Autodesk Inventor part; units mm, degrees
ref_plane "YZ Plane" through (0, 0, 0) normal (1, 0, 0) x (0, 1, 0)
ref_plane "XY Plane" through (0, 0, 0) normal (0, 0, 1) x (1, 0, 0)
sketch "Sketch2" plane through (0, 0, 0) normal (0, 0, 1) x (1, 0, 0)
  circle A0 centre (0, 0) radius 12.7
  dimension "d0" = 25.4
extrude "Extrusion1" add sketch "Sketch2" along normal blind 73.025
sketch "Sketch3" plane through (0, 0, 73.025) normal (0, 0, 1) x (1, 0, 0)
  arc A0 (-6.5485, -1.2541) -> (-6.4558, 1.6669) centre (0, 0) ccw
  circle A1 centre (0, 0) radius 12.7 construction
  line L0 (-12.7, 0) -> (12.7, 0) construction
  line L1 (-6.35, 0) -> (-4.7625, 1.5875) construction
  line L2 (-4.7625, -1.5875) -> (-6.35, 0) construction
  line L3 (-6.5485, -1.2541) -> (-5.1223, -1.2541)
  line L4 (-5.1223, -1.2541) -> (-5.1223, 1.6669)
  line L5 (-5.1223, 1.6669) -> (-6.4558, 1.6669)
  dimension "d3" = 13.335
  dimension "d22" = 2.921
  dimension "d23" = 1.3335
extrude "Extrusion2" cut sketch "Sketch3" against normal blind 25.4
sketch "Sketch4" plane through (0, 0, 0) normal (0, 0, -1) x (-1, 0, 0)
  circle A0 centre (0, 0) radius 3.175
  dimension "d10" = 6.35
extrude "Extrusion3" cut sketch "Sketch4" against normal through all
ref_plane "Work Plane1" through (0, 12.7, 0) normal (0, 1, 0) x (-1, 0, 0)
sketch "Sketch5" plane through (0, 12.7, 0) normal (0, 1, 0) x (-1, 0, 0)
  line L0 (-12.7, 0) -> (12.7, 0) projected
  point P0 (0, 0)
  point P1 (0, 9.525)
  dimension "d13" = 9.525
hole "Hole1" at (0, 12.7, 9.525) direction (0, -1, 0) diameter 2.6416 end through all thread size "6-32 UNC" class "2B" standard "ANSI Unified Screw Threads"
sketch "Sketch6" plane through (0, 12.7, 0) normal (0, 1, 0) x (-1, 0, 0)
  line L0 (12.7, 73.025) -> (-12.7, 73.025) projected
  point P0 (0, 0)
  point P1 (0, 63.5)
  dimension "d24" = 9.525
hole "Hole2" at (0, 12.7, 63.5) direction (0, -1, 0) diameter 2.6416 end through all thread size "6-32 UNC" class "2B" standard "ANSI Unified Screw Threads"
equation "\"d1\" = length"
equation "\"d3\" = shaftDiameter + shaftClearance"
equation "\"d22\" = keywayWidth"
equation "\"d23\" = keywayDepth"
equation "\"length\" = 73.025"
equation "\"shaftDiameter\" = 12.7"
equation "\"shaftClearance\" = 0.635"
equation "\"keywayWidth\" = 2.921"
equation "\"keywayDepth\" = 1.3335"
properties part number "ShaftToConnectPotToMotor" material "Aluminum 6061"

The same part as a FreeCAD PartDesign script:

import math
import FreeCAD as App
import Part
import Sketcher
Q = App.Units.Quantity

doc = App.newDocument("Part")
body = doc.addObject("PartDesign::Body", "Body")

# Sketch on XY plane
sketch1 = body.newObject("Sketcher::SketchObject", "Sketch")
sketch1.AttachmentSupport = (doc.getObject("XY_Plane"), [""])
sketch1.MapMode = "FlatFace"
sketch1.addGeometry(Part.Circle(App.Vector(0, 0, 0), App.Vector(0, 0, 1), 12.7), False)
sketch1.addConstraint([
    Sketcher.Constraint("Coincident", 0, 3, -1, 1),
    Sketcher.Constraint("Diameter", 0, Q("1 in")),
])
pad1 = body.newObject("PartDesign::Pad", "Pad")
pad1.Profile = sketch1
pad1.Length = Q("2.875 in")

# Sketch on XY plane
sketch2 = body.newObject("Sketcher::SketchObject", "Sketch001")
sketch2.AttachmentSupport = (doc.getObject("XY_Plane"), [""])
sketch2.MapMode = "FlatFace"
sketch2.AttachmentOffset = App.Placement(App.Vector(0, 0, 2.875 * 25.4), App.Rotation())
sketch2.addGeometry([
    Part.LineSegment(App.Vector(-5.1223, -1.2541, 0), App.Vector(-6.5485, -1.2541, 0)),
    Part.ArcOfCircle(Part.Circle(App.Vector(0, 0, 0), App.Vector(0, 0, 1), 6.667505), math.radians(-169.158581), math.radians(165.522325)),
    Part.LineSegment(App.Vector(-6.4558, 1.6669, 0), App.Vector(-5.1223, 1.6669, 0)),
    Part.LineSegment(App.Vector(-5.1223, 1.6669, 0), App.Vector(-5.1223, -1.2541, 0)),
], False)
sketch2.addConstraint([
    Sketcher.Constraint("Coincident", 0, 2, 1, 1),
    Sketcher.Constraint("Coincident", 1, 2, 2, 1),
    Sketcher.Constraint("Coincident", 2, 2, 3, 1),
    Sketcher.Constraint("Coincident", 3, 2, 0, 1),
    Sketcher.Constraint("Horizontal", 0),
    Sketcher.Constraint("Horizontal", 2),
    Sketcher.Constraint("Vertical", 3),
    Sketcher.Constraint("Coincident", 1, 3, -1, 1),
    Sketcher.Constraint("Radius", 1, Q("0.2625 in")),
    Sketcher.Constraint("DistanceY", 3, 2, 3, 1, Q("0.115 in")),
    Sketcher.Constraint("DistanceX", 2, 1, 2, 2, Q("0.0525 in")),
    Sketcher.Constraint("DistanceX", 0, 2, 0, 1, 1.4262),
])
pocket1 = body.newObject("PartDesign::Pocket", "Pocket")
pocket1.Profile = sketch2
pocket1.Length = Q("1 in")

# Sketch on XY plane
sketch3 = body.newObject("Sketcher::SketchObject", "Sketch002")
sketch3.AttachmentSupport = (doc.getObject("XY_Plane"), [""])
sketch3.MapMode = "FlatFace"
sketch3.addGeometry(Part.Circle(App.Vector(0, 0, 0), App.Vector(0, 0, 1), 3.175), False)
sketch3.addConstraint([
    Sketcher.Constraint("Coincident", 0, 3, -1, 1),
    Sketcher.Constraint("Diameter", 0, Q("0.25 in")),
])
pocket2 = body.newObject("PartDesign::Pocket", "Pocket001")
pocket2.Profile = sketch3
pocket2.Type = "ThroughAll"
pocket2.Reversed = True

# Sketch on XZ plane
sketch4 = body.newObject("Sketcher::SketchObject", "Sketch003")
sketch4.AttachmentSupport = (doc.getObject("XZ_Plane"), [""])
sketch4.MapMode = "FlatFace"
sketch4.AttachmentOffset = App.Placement(App.Vector(0, 0, -0.5 * 25.4), App.Rotation())
sketch4.addGeometry(Part.Circle(App.Vector(0, 9.525, 0), App.Vector(0, 0, 1), 1.3208), False)
sketch4.addConstraint([
    Sketcher.Constraint("PointOnObject", 0, 3, -2),
    Sketcher.Constraint("Diameter", 0, Q("0.104 in")),
    Sketcher.Constraint("DistanceY", -1, 1, 0, 3, Q("0.375 in")),
])
doc.recompute()
hole = body.newObject("PartDesign::Hole", "Hole")
hole.Profile = sketch4
hole.ThreadType = "None"
hole.Diameter = Q("0.104 in")
hole.DepthType = "ThroughAll"
hole.Reversed = True

# Sketch on XZ plane
sketch5 = body.newObject("Sketcher::SketchObject", "Sketch004")
sketch5.AttachmentSupport = (doc.getObject("XZ_Plane"), [""])
sketch5.MapMode = "FlatFace"
sketch5.AttachmentOffset = App.Placement(App.Vector(0, 0, -0.5 * 25.4), App.Rotation())
sketch5.addGeometry(Part.Circle(App.Vector(0, 63.5, 0), App.Vector(0, 0, 1), 1.3208), False)
sketch5.addConstraint([
    Sketcher.Constraint("PointOnObject", 0, 3, -2),
    Sketcher.Constraint("Diameter", 0, Q("0.104 in")),
    Sketcher.Constraint("DistanceY", -1, 1, 0, 3, Q("2.5 in")),
])
doc.recompute()
hole2 = body.newObject("PartDesign::Hole", "Hole001")
hole2.Profile = sketch5
hole2.ThreadType = "None"
hole2.Diameter = Q("0.104 in")
hole2.DepthType = "ThroughAll"
hole2.Reversed = True

doc.recompute()
